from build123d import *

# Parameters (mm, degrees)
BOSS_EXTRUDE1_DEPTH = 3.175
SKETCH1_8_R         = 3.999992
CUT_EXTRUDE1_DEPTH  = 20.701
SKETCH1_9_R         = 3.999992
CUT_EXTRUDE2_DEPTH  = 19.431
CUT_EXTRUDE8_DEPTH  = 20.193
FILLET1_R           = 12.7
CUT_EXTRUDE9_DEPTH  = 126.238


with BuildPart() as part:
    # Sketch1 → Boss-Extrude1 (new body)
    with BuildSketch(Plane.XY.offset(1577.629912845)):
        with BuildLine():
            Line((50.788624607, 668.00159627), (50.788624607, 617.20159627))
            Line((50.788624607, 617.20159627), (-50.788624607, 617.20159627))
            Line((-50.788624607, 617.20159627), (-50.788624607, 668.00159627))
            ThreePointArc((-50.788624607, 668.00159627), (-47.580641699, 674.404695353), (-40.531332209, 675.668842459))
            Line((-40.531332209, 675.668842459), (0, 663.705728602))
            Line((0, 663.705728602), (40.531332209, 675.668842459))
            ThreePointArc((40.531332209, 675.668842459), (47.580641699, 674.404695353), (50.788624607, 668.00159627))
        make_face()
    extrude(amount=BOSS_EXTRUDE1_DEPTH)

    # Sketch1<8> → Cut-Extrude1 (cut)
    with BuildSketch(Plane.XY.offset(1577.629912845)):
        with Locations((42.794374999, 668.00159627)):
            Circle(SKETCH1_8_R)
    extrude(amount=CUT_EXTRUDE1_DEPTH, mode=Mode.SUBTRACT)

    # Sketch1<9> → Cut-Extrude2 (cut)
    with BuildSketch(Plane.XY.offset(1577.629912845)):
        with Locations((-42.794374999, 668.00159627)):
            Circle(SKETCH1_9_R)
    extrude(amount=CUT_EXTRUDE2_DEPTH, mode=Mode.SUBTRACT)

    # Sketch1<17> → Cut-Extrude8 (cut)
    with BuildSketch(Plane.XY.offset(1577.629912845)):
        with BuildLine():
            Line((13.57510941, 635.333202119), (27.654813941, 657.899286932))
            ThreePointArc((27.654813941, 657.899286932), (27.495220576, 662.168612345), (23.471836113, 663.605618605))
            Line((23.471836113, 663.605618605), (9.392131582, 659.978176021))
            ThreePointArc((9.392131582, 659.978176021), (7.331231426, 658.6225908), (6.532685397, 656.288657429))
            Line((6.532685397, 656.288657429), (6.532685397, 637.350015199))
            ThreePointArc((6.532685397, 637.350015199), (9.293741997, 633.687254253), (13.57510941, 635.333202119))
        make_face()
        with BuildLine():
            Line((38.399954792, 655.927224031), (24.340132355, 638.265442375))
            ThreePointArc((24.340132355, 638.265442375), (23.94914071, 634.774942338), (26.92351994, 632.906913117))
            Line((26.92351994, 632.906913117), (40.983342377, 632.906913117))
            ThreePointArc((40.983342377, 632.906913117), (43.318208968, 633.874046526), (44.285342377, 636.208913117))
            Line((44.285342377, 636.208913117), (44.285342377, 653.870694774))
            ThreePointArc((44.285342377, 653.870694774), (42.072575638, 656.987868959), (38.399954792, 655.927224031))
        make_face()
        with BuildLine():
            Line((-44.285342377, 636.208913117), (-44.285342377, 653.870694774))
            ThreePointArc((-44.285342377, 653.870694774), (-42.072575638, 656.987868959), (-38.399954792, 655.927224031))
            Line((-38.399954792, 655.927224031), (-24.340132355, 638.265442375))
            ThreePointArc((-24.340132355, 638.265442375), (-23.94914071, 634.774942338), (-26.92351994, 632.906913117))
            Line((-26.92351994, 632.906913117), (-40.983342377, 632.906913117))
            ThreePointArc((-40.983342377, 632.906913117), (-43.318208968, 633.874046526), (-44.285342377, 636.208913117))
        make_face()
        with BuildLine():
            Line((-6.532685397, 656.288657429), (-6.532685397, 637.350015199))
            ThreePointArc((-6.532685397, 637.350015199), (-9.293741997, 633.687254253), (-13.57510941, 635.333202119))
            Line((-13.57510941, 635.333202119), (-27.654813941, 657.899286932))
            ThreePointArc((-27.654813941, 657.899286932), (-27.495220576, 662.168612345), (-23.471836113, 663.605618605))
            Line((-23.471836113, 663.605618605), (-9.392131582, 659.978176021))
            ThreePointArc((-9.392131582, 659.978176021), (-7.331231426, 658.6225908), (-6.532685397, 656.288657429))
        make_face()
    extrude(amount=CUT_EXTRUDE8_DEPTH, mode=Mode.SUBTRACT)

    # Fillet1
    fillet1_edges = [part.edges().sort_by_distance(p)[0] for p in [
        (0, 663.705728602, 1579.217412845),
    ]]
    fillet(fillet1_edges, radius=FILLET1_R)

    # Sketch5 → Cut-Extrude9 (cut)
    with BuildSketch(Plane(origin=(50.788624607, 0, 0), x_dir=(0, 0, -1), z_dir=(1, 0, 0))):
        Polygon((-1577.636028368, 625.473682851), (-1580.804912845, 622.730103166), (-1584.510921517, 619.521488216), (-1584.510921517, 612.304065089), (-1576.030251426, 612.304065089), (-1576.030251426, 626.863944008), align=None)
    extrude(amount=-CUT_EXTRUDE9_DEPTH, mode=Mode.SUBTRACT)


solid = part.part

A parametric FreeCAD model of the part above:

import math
import FreeCAD as App
import Part
import Sketcher

V = App.Vector
Q = App.Units.Quantity


def edges_at(feature, points):
    """Names of the edges that pass closest to the given points."""
    edges = feature.Shape.Edges
    near = lambda p: min(range(len(edges)), key=lambda i: edges[i].distToShape(Part.Vertex(*p))[0])
    return sorted({f"Edge{near(p) + 1}" for p in points})

doc = App.newDocument("Part")
params = doc.addObject("Spreadsheet::Sheet", "Params")
for row, (alias, value) in enumerate([
    ("sketch1_height", "2 in"),
    ("pad1_length", "0.125 in"),
    ("pocket1_length", "0.815 in"),
    ("pocket2_length", "0.765 in"),
    ("sketch4_radius", "0.15 in"),
    ("sketch4_radius2", "0.13 in"),
    ("pocket3_length", "0.795 in"),
    ("fillet_radius", "0.5 in"),
    ("pocket4_length", "4.97 in"),
], start=1):
    params.set(f"A{row}", alias)
    params.set(f"B{row}", "=" + value)
    params.setAlias(f"B{row}", alias)

body = doc.addObject("PartDesign::Body", "Body")

# Sketch on XY plane
sketch1 = body.newObject("Sketcher::SketchObject", "Sketch")
sketch1.AttachmentSupport = (doc.getObject("XY_Plane"), [""])
sketch1.MapMode = "FlatFace"
sketch1.AttachmentOffset = App.Placement(V(0, 0, 1577.629913), App.Rotation())
sketch1.addGeometry(Part.LineSegment(V(50.788625, 617.201596, 0), V(50.788625, 668.001596, 0)), False)
sketch1.addGeometry(Part.ArcOfCircle(Part.Circle(V(42.794375, 668.001596, 0), V(0, 0, 1), 7.99425), math.radians(0), math.radians(106.444344)), False)
sketch1.addGeometry(Part.LineSegment(V(40.531332, 675.668842, 0), V(0, 663.705729, 0)), False)
sketch1.addGeometry(Part.LineSegment(V(0, 663.705729, 0), V(-40.531332, 675.668842, 0)), False)
sketch1.addGeometry(Part.ArcOfCircle(Part.Circle(V(-42.794375, 668.001596, 0), V(0, 0, 1), 7.99425), math.radians(73.555656), math.radians(180)), False)
sketch1.addGeometry(Part.LineSegment(V(-50.788625, 668.001596, 0), V(-50.788625, 617.201596, 0)), False)
sketch1.addGeometry(Part.LineSegment(V(-50.788625, 617.201596, 0), V(50.788625, 617.201596, 0)), False)
sketch1.addConstraint(Sketcher.Constraint("Tangent", 0, 2, 1, 1))
sketch1.addConstraint(Sketcher.Constraint("Tangent", 1, 2, 2, 1))
sketch1.addConstraint(Sketcher.Constraint("Coincident", 2, 2, 3, 1))
sketch1.addConstraint(Sketcher.Constraint("Tangent", 3, 2, 4, 1))
sketch1.addConstraint(Sketcher.Constraint("Tangent", 4, 2, 5, 1))
sketch1.addConstraint(Sketcher.Constraint("Coincident", 5, 2, 6, 1))
sketch1.addConstraint(Sketcher.Constraint("Coincident", 6, 2, 0, 1))
sketch1.addConstraint(Sketcher.Constraint("Vertical", 0))
sketch1.addConstraint(Sketcher.Constraint("Vertical", 5))
sketch1.addConstraint(Sketcher.Constraint("Horizontal", 6))
sketch1.addConstraint(Sketcher.Constraint("Equal", 1, 4))
sketch1.addConstraint(Sketcher.Constraint("Symmetric", 1, 3, 4, 3, -2))
sketch1.addConstraint(Sketcher.Constraint("PointOnObject", 2, 2, -2))
sketch1.addConstraint(Sketcher.Constraint("DistanceY", 0, 1, 0, 2, Q("2 in")))
sketch1.addConstraint(Sketcher.Constraint("Radius", 1, 7.99425))
sketch1.addConstraint(Sketcher.Constraint("DistanceX", 6, 1, 6, 2, 101.577249))
sketch1.addConstraint(Sketcher.Constraint("Distance", 2, 42.259969))
sketch1.addConstraint(Sketcher.Constraint("DistanceY", -1, 1, 2, 2, 663.705729))
sketch1.setExpression("Constraints[13]", "Params.sketch1_height")
pad1 = body.newObject("PartDesign::Pad", "Pad")
pad1.Profile = sketch1
pad1.setExpression("Length", "Params.pad1_length")

# Sketch on XY plane
sketch2 = body.newObject("Sketcher::SketchObject", "Sketch001")
sketch2.AttachmentSupport = (doc.getObject("XY_Plane"), [""])
sketch2.MapMode = "FlatFace"
sketch2.AttachmentOffset = App.Placement(V(0, 0, 1577.629913), App.Rotation())
sketch2.addGeometry(Part.Circle(V(42.794375, 668.001596, 0), V(0, 0, 1), 3.999992), False)
sketch2.addConstraint(Sketcher.Constraint("Diameter", 0, 7.999984))
sketch2.addConstraint(Sketcher.Constraint("DistanceX", -1, 1, 0, 3, 42.794375))
sketch2.addConstraint(Sketcher.Constraint("DistanceY", -1, 1, 0, 3, 668.001596))
pocket1 = body.newObject("PartDesign::Pocket", "Pocket")
pocket1.Profile = sketch2
pocket1.setExpression("Length", "Params.pocket1_length")
pocket1.Reversed = True

# Sketch on XY plane
sketch3 = body.newObject("Sketcher::SketchObject", "Sketch002")
sketch3.AttachmentSupport = (doc.getObject("XY_Plane"), [""])
sketch3.MapMode = "FlatFace"
sketch3.AttachmentOffset = App.Placement(V(0, 0, 1577.629913), App.Rotation())
sketch3.addGeometry(Part.Circle(V(-42.794375, 668.001596, 0), V(0, 0, 1), 3.999992), False)
sketch3.addConstraint(Sketcher.Constraint("Diameter", 0, 7.999984))
sketch3.addConstraint(Sketcher.Constraint("DistanceX", 0, 3, -1, 1, 42.794375))
sketch3.addConstraint(Sketcher.Constraint("DistanceY", -1, 1, 0, 3, 668.001596))
pocket2 = body.newObject("PartDesign::Pocket", "Pocket001")
pocket2.Profile = sketch3
pocket2.setExpression("Length", "Params.pocket2_length")
pocket2.Reversed = True

# Sketch on XY plane
sketch4 = body.newObject("Sketcher::SketchObject", "Sketch003")
sketch4.AttachmentSupport = (doc.getObject("XY_Plane"), [""])
sketch4.MapMode = "FlatFace"
sketch4.AttachmentOffset = App.Placement(V(0, 0, 1577.629913), App.Rotation())
sketch4.addGeometry(Part.LineSegment(V(13.575109, 635.333202, 0), V(27.654814, 657.899287, 0)), False)
sketch4.addGeometry(Part.ArcOfCircle(Part.Circle(V(24.42239, 659.9161, 0), V(0, 0, 1), 3.81), math.radians(-31.961363), math.radians(104.447287)), False)
sketch4.addGeometry(Part.LineSegment(V(23.471836, 663.605619, 0), V(9.392132, 659.978176, 0)), False)
sketch4.addGeometry(Part.ArcOfCircle(Part.Circle(V(10.342685, 656.288657, 0), V(0, 0, 1), 3.81), math.radians(104.447287), math.radians(180)), False)
sketch4.addGeometry(Part.LineSegment(V(6.532685, 656.288657, 0), V(6.532685, 637.350015, 0)), False)
sketch4.addGeometry(Part.ArcOfCircle(Part.Circle(V(10.342685, 637.350015, 0), V(0, 0, 1), 3.81), math.radians(180), math.radians(328.038637)), False)
sketch4.addGeometry(Part.LineSegment(V(38.399955, 655.927224, 0), V(24.340132, 638.265442, 0)), False)
sketch4.addGeometry(Part.ArcOfCircle(Part.Circle(V(26.92352, 636.208913, 0), V(0, 0, 1), 3.302), math.radians(141.478137), math.radians(270)), False)
sketch4.addGeometry(Part.LineSegment(V(26.92352, 632.906913, 0), V(40.983342, 632.906913, 0)), False)
sketch4.addGeometry(Part.ArcOfCircle(Part.Circle(V(40.983342, 636.208913, 0), V(0, 0, 1), 3.302), math.radians(-90), math.radians(0)), False)
sketch4.addGeometry(Part.LineSegment(V(44.285342, 636.208913, 0), V(44.285342, 653.870695, 0)), False)
sketch4.addGeometry(Part.ArcOfCircle(Part.Circle(V(40.983342, 653.870695, 0), V(0, 0, 1), 3.302), math.radians(0), math.radians(141.478137)), False)
sketch4.addGeometry(Part.LineSegment(V(-44.285342, 653.870695, 0), V(-44.285342, 636.208913, 0)), False)
sketch4.addGeometry(Part.ArcOfCircle(Part.Circle(V(-40.983342, 636.208913, 0), V(0, 0, 1), 3.302), math.radians(-180), math.radians(-90)), False)
sketch4.addGeometry(Part.LineSegment(V(-40.983342, 632.906913, 0), V(-26.92352, 632.906913, 0)), False)
sketch4.addGeometry(Part.ArcOfCircle(Part.Circle(V(-26.92352, 636.208913, 0), V(0, 0, 1), 3.302), math.radians(-90), math.radians(38.521863)), False)
sketch4.addGeometry(Part.LineSegment(V(-24.340132, 638.265442, 0), V(-38.399955, 655.927224, 0)), False)
sketch4.addGeometry(Part.ArcOfCircle(Part.Circle(V(-40.983342, 653.870695, 0), V(0, 0, 1), 3.302), math.radians(38.521863), math.radians(180)), False)
sketch4.addGeometry(Part.LineSegment(V(-6.532685, 637.350015, 0), V(-6.532685, 656.288657, 0)), False)
sketch4.addGeometry(Part.ArcOfCircle(Part.Circle(V(-10.342685, 656.288657, 0), V(0, 0, 1), 3.81), math.radians(0), math.radians(75.552713)), False)
sketch4.addGeometry(Part.LineSegment(V(-9.392132, 659.978176, 0), V(-23.471836, 663.605619, 0)), False)
sketch4.addGeometry(Part.ArcOfCircle(Part.Circle(V(-24.42239, 659.9161, 0), V(0, 0, 1), 3.81), math.radians(75.552713), math.radians(211.961363)), False)
sketch4.addGeometry(Part.LineSegment(V(-27.654814, 657.899287, 0), V(-13.575109, 635.333202, 0)), False)
sketch4.addGeometry(Part.ArcOfCircle(Part.Circle(V(-10.342685, 637.350015, 0), V(0, 0, 1), 3.81), math.radians(-148.038637), math.radians(0)), False)
sketch4.addConstraint(Sketcher.Constraint("Tangent", 0, 2, 1, 1))
sketch4.addConstraint(Sketcher.Constraint("Tangent", 1, 2, 2, 1))
sketch4.addConstraint(Sketcher.Constraint("Tangent", 2, 2, 3, 1))
sketch4.addConstraint(Sketcher.Constraint("Tangent", 3, 2, 4, 1))
sketch4.addConstraint(Sketcher.Constraint("Tangent", 4, 2, 5, 1))
sketch4.addConstraint(Sketcher.Constraint("Tangent", 5, 2, 0, 1))
sketch4.addConstraint(Sketcher.Constraint("Tangent", 6, 2, 7, 1))
sketch4.addConstraint(Sketcher.Constraint("Tangent", 7, 2, 8, 1))
sketch4.addConstraint(Sketcher.Constraint("Tangent", 8, 2, 9, 1))
sketch4.addConstraint(Sketcher.Constraint("Tangent", 9, 2, 10, 1))
sketch4.addConstraint(Sketcher.Constraint("Tangent", 10, 2, 11, 1))
sketch4.addConstraint(Sketcher.Constraint("Tangent", 11, 2, 6, 1))
sketch4.addConstraint(Sketcher.Constraint("Tangent", 12, 2, 13, 1))
sketch4.addConstraint(Sketcher.Constraint("Tangent", 13, 2, 14, 1))
sketch4.addConstraint(Sketcher.Constraint("Tangent", 14, 2, 15, 1))
sketch4.addConstraint(Sketcher.Constraint("Tangent", 15, 2, 16, 1))
sketch4.addConstraint(Sketcher.Constraint("Tangent", 16, 2, 17, 1))
sketch4.addConstraint(Sketcher.Constraint("Tangent", 17, 2, 12, 1))
sketch4.addConstraint(Sketcher.Constraint("Tangent", 18, 2, 19, 1))
sketch4.addConstraint(Sketcher.Constraint("Tangent", 19, 2, 20, 1))
sketch4.addConstraint(Sketcher.Constraint("Tangent", 20, 2, 21, 1))
sketch4.addConstraint(Sketcher.Constraint("Tangent", 21, 2, 22, 1))
sketch4.addConstraint(Sketcher.Constraint("Tangent", 22, 2, 23, 1))
sketch4.addConstraint(Sketcher.Constraint("Tangent", 23, 2, 18, 1))
sketch4.addConstraint(Sketcher.Constraint("Vertical", 4))
sketch4.addConstraint(Sketcher.Constraint("Horizontal", 8))
sketch4.addConstraint(Sketcher.Constraint("Vertical", 10))
sketch4.addConstraint(Sketcher.Constraint("Vertical", 12))
sketch4.addConstraint(Sketcher.Constraint("Horizontal", 14))
sketch4.addConstraint(Sketcher.Constraint("Vertical", 18))
sketch4.addConstraint(Sketcher.Constraint("Equal", 1, 3))
sketch4.addConstraint(Sketcher.Constraint("Equal", 3, 5))
sketch4.addConstraint(Sketcher.Constraint("Equal", 7, 9))
sketch4.addConstraint(Sketcher.Constraint("Equal", 9, 11))
sketch4.addConstraint(Sketcher.Constraint("Equal", 11, 13))
sketch4.addConstraint(Sketcher.Constraint("Equal", 13, 15))
sketch4.addConstraint(Sketcher.Constraint("Equal", 15, 17))
sketch4.addConstraint(Sketcher.Constraint("Equal", 5, 19))
sketch4.addConstraint(Sketcher.Constraint("Equal", 19, 21))
sketch4.addConstraint(Sketcher.Constraint("Equal", 21, 23))
sketch4.addConstraint(Sketcher.Constraint("Symmetric", 9, 3, 13, 3, -2))
sketch4.addConstraint(Sketcher.Constraint("Symmetric", 3, 3, 19, 3, -2))
sketch4.addConstraint(Sketcher.Constraint("Symmetric", 1, 3, 21, 3, -2))
sketch4.addConstraint(Sketcher.Constraint("Symmetric", 6, 2, 15, 2, -2))
sketch4.addConstraint(Sketcher.Constraint("Horizontal", 5, 3, 23, 3))
sketch4.addConstraint(Sketcher.Constraint("Radius", 1, Q("0.15 in")))
sketch4.addConstraint(Sketcher.Constraint("Radius", 7, Q("0.13 in")))
sketch4.addConstraint(Sketcher.Constraint("Distance", 6, 22.574701))
sketch4.addConstraint(Sketcher.Constraint("DistanceY", 10, 1, 10, 2, 17.661782))
sketch4.addConstraint(Sketcher.Constraint("DistanceY", -1, 1, 1, 3, 659.9161))
sketch4.addConstraint(Sketcher.Constraint("DistanceY", 4, 2, 4, 1, 18.938642))
sketch4.addConstraint(Sketcher.Constraint("DistanceX", -1, 1, 1, 3, 24.42239))
sketch4.addConstraint(Sketcher.Constraint("DistanceX", -1, 1, 7, 3, 26.92352))
sketch4.addConstraint(Sketcher.Constraint("DistanceY", -1, 1, 1, 2, 663.605619))
sketch4.addConstraint(Sketcher.Constraint("DistanceX", -1, 1, 2, 2, 9.392132))
sketch4.addConstraint(Sketcher.Constraint("DistanceY", 5, 3, 11, 3, 16.52068))
sketch4.setExpression("Constraints[45]", "Params.sketch4_radius")
sketch4.setExpression("Constraints[46]", "Params.sketch4_radius2")
pocket3 = body.newObject("PartDesign::Pocket", "Pocket002")
pocket3.Profile = sketch4
pocket3.setExpression("Length", "Params.pocket3_length")
pocket3.Reversed = True
doc.recompute()

fillet = body.newObject("PartDesign::Fillet", "Fillet")
fillet.Base = (pocket3, edges_at(pocket3, [(0, 663.706, 1579.217)]))
fillet.setExpression("Radius", "Params.fillet_radius")

# Sketch on YZ plane
sketch5 = body.newObject("Sketcher::SketchObject", "Sketch004")
sketch5.AttachmentSupport = (doc.getObject("YZ_Plane"), [""])
sketch5.MapMode = "FlatFace"
sketch5.AttachmentOffset = App.Placement(V(0, 0, 50.788625), App.Rotation())
sketch5.addGeometry(Part.LineSegment(V(625.473683, 1577.636028, 0), V(622.730103, 1580.804913, 0)), False)
sketch5.addGeometry(Part.LineSegment(V(622.730103, 1580.804913, 0), V(619.521488, 1584.510922, 0)), False)
sketch5.addGeometry(Part.LineSegment(V(619.521488, 1584.510922, 0), V(612.304065, 1584.510922, 0)), False)
sketch5.addGeometry(Part.LineSegment(V(612.304065, 1584.510922, 0), V(612.304065, 1576.030251, 0)), False)
sketch5.addGeometry(Part.LineSegment(V(612.304065, 1576.030251, 0), V(626.863944, 1576.030251, 0)), False)
sketch5.addGeometry(Part.LineSegment(V(626.863944, 1576.030251, 0), V(625.473683, 1577.636028, 0)), False)
sketch5.addConstraint(Sketcher.Constraint("Coincident", 0, 2, 1, 1))
sketch5.addConstraint(Sketcher.Constraint("Coincident", 1, 2, 2, 1))
sketch5.addConstraint(Sketcher.Constraint("Coincident", 2, 2, 3, 1))
sketch5.addConstraint(Sketcher.Constraint("Coincident", 3, 2, 4, 1))
sketch5.addConstraint(Sketcher.Constraint("Coincident", 4, 2, 5, 1))
sketch5.addConstraint(Sketcher.Constraint("Coincident", 5, 2, 0, 1))
sketch5.addConstraint(Sketcher.Constraint("Horizontal", 2))
sketch5.addConstraint(Sketcher.Constraint("Vertical", 3))
sketch5.addConstraint(Sketcher.Constraint("Horizontal", 4))
sketch5.addConstraint(Sketcher.Constraint("Parallel", 0, 1))
sketch5.addConstraint(Sketcher.Constraint("Parallel", 1, 5))
sketch5.addConstraint(Sketcher.Constraint("DistanceX", 4, 1, 4, 2, 14.559879))
sketch5.addConstraint(Sketcher.Constraint("DistanceY", 3, 2, 3, 1, 8.48067))
sketch5.addConstraint(Sketcher.Constraint("Distance", 1, 4.902011))
sketch5.addConstraint(Sketcher.Constraint("DistanceX", 2, 2, 2, 1, 7.217423))
sketch5.addConstraint(Sketcher.Constraint("DistanceX", -1, 1, 1, 2, 619.521488))
sketch5.addConstraint(Sketcher.Constraint("DistanceY", -1, 1, 1, 2, 1584.510922))
sketch5.addConstraint(Sketcher.Constraint("DistanceY", -1, 1, 5, 2, 1577.636028))
pocket4 = body.newObject("PartDesign::Pocket", "Pocket003")
pocket4.Profile = sketch5
pocket4.setExpression("Length", "Params.pocket4_length")

doc.recompute()
